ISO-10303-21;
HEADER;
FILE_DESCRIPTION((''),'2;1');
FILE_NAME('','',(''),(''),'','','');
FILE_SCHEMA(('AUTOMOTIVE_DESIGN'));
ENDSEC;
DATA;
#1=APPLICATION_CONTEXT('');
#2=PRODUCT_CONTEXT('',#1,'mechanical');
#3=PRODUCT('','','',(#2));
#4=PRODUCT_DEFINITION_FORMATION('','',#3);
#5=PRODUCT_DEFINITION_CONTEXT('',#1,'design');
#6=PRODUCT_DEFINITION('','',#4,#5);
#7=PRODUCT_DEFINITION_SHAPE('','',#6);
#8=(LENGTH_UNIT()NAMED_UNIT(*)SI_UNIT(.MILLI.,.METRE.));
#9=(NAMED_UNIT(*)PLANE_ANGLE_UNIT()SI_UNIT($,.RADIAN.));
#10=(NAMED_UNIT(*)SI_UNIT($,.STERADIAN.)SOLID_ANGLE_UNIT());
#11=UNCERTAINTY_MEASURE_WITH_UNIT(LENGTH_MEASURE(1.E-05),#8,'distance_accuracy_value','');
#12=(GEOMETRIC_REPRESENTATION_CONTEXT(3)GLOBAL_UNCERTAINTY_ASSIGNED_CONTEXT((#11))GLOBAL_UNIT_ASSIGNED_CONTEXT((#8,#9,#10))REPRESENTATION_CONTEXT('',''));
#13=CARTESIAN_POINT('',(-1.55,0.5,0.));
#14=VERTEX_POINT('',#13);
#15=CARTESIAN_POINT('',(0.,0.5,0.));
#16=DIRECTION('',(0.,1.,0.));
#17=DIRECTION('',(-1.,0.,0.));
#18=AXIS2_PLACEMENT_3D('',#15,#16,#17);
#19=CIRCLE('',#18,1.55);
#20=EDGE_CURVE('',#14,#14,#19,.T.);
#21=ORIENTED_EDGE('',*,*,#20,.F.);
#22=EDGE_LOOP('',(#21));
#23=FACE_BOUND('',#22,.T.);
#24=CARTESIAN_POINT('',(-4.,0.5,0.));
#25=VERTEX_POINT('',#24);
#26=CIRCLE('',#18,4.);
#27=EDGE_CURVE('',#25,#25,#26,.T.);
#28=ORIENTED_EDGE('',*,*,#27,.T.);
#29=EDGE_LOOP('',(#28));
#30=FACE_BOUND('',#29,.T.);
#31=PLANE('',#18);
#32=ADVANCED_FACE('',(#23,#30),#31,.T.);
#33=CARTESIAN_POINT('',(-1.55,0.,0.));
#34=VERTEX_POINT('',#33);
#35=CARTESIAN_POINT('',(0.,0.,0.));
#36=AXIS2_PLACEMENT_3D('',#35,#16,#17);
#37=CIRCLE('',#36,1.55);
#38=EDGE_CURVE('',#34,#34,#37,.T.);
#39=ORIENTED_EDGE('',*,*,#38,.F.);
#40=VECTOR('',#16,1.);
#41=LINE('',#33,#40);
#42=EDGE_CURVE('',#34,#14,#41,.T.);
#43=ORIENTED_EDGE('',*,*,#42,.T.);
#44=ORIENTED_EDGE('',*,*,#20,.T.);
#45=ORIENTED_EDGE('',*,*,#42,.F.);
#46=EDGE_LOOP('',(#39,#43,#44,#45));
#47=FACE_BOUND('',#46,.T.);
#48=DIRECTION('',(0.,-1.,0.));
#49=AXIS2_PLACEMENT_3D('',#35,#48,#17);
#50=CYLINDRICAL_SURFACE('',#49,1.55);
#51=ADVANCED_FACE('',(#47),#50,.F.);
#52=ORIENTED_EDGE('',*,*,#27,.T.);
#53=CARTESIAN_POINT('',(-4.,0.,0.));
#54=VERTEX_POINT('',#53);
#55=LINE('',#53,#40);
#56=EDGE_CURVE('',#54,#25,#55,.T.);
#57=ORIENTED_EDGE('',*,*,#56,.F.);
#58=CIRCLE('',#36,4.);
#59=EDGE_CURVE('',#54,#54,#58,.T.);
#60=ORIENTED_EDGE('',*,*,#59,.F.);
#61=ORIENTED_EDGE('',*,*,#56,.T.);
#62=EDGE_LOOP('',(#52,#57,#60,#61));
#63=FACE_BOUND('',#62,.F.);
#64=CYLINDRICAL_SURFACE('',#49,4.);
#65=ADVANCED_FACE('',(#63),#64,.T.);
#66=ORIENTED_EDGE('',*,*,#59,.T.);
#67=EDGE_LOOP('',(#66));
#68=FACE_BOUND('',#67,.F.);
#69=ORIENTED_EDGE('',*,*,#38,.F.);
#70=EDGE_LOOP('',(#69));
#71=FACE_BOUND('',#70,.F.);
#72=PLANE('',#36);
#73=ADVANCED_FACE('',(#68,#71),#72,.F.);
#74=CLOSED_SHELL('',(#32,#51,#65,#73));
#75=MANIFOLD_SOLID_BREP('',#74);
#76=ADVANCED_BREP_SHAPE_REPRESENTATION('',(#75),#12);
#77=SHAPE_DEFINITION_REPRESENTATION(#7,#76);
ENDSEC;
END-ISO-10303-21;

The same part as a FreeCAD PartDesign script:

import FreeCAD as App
import Part
import Sketcher
from FreeCAD import Vector
Q = App.Units.Quantity

doc = App.newDocument("Part")
body = doc.addObject("PartDesign::Body", "Body")

# Sketch on XZ plane
sketch1 = doc.addObject("Sketcher::SketchObject", "Sketch")
body.addObject(sketch1)
sketch1.AttachmentSupport = (doc.XZ_Plane, [""])
sketch1.MapMode = "FlatFace"
sketch1.addGeometry([
    Part.Circle(Vector(0, 0, 0), Vector(0, 0, 1), 4),
    Part.Circle(Vector(0, 0, 0), Vector(0, 0, 1), 1.6),
], False)
sketch1.addConstraint([
    Sketcher.Constraint("Coincident", 0, 3, -1, 1),
    Sketcher.Constraint("Coincident", 1, 3, -1, 1),
    Sketcher.Constraint("Diameter", 0, Q("8 mm")),
    Sketcher.Constraint("Diameter", 1, Q("3.1 mm")),
])
pad1 = doc.addObject("PartDesign::Pad", "Pad")
body.addObject(pad1)
pad1.Profile = sketch1
pad1.Length = 0.5
pad1.Reversed = True

doc.recompute()
